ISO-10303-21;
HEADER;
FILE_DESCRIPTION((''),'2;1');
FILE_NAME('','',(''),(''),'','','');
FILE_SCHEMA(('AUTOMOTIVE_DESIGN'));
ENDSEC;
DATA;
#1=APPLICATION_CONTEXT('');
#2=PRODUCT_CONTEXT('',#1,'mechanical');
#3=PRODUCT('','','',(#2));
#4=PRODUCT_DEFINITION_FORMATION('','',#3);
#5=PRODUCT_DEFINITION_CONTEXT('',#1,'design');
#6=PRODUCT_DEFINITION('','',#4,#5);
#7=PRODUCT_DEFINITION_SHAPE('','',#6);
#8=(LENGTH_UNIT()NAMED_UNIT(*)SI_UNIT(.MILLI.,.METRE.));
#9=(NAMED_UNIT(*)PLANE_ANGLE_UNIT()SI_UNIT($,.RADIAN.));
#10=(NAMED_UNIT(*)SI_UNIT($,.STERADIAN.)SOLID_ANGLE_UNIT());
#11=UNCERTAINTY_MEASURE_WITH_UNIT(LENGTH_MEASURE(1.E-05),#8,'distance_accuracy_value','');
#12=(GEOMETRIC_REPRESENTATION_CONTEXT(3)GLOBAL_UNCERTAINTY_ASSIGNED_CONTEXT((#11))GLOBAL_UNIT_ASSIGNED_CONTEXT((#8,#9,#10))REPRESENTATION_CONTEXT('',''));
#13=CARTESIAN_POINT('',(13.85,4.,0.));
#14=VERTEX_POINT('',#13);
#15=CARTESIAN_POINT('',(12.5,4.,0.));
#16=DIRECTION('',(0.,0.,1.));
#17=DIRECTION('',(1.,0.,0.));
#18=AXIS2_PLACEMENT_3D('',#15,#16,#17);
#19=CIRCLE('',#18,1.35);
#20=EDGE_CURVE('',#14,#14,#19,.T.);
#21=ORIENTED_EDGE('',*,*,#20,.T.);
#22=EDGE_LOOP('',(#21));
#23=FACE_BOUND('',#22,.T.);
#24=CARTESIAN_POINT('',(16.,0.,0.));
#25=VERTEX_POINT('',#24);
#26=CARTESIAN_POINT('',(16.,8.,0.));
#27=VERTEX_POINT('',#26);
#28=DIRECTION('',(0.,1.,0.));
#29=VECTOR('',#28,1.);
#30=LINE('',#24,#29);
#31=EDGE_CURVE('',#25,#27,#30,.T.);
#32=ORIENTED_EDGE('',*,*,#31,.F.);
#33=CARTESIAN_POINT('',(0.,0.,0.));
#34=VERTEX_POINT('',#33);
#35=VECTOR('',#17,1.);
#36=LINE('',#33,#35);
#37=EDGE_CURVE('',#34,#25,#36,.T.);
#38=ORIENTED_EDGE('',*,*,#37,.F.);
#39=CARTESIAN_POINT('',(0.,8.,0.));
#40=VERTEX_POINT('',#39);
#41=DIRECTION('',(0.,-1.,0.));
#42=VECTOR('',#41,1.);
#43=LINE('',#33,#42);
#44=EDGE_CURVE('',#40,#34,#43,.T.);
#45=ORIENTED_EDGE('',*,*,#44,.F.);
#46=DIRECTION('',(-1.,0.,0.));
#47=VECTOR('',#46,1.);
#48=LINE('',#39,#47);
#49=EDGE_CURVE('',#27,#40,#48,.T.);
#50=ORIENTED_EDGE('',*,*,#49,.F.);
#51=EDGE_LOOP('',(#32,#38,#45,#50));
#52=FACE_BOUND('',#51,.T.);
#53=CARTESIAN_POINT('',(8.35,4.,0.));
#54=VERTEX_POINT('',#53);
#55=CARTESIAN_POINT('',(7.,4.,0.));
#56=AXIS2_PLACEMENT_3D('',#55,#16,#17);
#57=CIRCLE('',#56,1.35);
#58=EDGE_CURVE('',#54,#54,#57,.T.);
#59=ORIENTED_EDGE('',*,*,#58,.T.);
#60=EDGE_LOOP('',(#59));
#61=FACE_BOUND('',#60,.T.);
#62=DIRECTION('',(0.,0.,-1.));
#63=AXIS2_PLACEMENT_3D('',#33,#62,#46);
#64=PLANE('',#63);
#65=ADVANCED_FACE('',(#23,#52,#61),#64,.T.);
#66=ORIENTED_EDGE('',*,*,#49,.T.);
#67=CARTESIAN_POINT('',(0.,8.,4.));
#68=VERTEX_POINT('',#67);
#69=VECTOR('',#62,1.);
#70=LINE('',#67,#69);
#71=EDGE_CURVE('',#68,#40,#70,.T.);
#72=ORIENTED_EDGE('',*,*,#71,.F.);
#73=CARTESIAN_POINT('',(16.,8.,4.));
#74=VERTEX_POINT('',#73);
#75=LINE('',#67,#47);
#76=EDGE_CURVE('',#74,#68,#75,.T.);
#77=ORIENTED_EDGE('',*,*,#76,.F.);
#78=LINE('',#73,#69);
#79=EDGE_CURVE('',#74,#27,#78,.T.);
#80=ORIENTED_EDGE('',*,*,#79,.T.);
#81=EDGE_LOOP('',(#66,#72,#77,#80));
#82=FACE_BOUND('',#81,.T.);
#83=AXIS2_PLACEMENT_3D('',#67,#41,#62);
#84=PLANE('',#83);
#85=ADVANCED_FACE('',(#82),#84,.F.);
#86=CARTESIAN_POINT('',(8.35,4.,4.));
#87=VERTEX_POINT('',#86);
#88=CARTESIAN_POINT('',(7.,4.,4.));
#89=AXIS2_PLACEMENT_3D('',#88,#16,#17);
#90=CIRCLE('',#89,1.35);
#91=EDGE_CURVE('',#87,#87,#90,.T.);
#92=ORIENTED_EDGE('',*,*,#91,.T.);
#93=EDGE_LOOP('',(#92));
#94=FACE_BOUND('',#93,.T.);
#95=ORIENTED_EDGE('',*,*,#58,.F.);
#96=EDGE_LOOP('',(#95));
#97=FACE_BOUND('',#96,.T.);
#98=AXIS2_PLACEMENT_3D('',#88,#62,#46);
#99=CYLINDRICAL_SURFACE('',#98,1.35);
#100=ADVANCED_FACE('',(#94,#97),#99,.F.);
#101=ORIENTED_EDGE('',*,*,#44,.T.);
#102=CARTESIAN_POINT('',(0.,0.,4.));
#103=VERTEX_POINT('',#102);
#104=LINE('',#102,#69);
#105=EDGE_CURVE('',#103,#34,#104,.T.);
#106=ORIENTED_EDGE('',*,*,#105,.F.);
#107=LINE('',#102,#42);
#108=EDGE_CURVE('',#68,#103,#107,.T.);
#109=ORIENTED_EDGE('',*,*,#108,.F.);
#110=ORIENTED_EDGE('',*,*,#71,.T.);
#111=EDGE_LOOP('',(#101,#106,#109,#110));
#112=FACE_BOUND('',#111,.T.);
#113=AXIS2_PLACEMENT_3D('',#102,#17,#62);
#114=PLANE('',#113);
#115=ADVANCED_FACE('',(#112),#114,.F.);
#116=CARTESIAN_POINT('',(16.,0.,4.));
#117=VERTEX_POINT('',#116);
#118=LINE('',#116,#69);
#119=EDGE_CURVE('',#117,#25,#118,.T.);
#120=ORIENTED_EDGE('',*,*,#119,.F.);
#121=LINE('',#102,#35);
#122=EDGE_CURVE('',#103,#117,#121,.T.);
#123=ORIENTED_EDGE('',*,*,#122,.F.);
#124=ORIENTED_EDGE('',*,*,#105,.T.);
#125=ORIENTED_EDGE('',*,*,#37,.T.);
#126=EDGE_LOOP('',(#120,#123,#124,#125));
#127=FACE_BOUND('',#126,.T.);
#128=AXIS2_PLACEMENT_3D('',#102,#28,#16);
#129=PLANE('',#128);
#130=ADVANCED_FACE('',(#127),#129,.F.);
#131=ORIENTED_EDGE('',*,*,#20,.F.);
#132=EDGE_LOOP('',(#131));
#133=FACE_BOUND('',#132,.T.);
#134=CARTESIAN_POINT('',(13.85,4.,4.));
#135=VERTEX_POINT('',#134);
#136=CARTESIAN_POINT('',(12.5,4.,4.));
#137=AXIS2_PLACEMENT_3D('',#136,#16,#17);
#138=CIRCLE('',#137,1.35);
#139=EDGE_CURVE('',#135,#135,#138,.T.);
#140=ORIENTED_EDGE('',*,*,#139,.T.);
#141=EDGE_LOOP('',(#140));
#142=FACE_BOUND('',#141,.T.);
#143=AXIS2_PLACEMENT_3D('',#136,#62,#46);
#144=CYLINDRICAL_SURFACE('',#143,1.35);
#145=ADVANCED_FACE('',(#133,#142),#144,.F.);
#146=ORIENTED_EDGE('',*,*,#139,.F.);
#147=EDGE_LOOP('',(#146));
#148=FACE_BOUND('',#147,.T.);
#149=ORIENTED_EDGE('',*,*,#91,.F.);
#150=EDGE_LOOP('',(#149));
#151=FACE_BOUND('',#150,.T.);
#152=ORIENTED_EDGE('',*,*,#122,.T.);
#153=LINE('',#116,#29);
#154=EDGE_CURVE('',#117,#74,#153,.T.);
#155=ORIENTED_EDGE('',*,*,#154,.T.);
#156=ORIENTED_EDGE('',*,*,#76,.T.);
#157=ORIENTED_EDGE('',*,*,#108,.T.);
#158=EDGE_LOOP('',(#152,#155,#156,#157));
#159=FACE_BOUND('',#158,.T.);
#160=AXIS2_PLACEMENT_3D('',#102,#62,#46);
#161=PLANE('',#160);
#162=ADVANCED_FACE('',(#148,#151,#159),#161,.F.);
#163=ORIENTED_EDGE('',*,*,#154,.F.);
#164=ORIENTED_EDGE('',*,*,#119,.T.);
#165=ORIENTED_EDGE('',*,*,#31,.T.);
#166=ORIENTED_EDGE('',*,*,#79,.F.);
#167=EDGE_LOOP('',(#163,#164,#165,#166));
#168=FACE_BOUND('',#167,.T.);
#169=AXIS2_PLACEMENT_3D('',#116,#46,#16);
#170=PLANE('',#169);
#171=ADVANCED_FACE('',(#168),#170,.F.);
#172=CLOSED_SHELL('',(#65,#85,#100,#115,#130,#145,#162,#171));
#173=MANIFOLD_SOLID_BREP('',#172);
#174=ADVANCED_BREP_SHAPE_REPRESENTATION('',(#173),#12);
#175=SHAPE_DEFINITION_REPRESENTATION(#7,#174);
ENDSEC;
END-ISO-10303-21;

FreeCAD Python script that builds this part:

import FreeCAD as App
import Part
import Sketcher
from FreeCAD import Vector


def add_polygon(sketch, points):
    """Adds a closed chain of lines whose ends are joined by coincident constraints."""
    first, n = sketch.GeometryCount, len(points)
    for a, b in zip(points, points[1:] + points[:1]):
        sketch.addGeometry(Part.LineSegment(App.Vector(*a, 0), App.Vector(*b, 0)), False)
    for i in range(n):
        sketch.addConstraint(Sketcher.Constraint("Coincident", first + i, 2, first + (i + 1) % n, 1))

doc = App.newDocument("Part")
body = doc.addObject("PartDesign::Body", "Body")

# Sketch on XY plane
sketch1 = doc.addObject("Sketcher::SketchObject", "Sketch")
body.addObject(sketch1)
sketch1.AttachmentSupport = (doc.XY_Plane, [""])
sketch1.MapMode = "FlatFace"
add_polygon(sketch1, [(0, 8), (0, 0), (16, 0), (16, 8)])  # lines 0-3
sketch1.addGeometry(Part.Circle(Vector(7, 4, 0), Vector(0, 0, 1), 1.35), False)  # 4
sketch1.addGeometry(Part.Circle(Vector(12.5, 4, 0), Vector(0, 0, 1), 1.35), False)  # 5
sketch1.addConstraint(Sketcher.Constraint("Vertical", 0))
sketch1.addConstraint(Sketcher.Constraint("Horizontal", 1))
sketch1.addConstraint(Sketcher.Constraint("Vertical", 2))
sketch1.addConstraint(Sketcher.Constraint("Horizontal", 3))
sketch1.addConstraint(Sketcher.Constraint("Coincident", 0, 2, -1, 1))
sketch1.addConstraint(Sketcher.Constraint("Equal", 4, 5))
sketch1.addConstraint(Sketcher.Constraint("Horizontal", 4, 3, 5, 3))
sketch1.addConstraint(Sketcher.Constraint("Diameter", 4, 2.7))
sketch1.addConstraint(Sketcher.Constraint("DistanceX", 1, 1, 1, 2, 16.0))
sketch1.addConstraint(Sketcher.Constraint("DistanceY", 0, 2, 0, 1, 8.0))
sketch1.addConstraint(Sketcher.Constraint("DistanceX", -1, 1, 4, 3, 7.0))
sketch1.addConstraint(Sketcher.Constraint("DistanceY", -1, 1, 4, 3, 4.0))
sketch1.addConstraint(Sketcher.Constraint("DistanceX", -1, 1, 5, 3, 12.5))
pad1 = doc.addObject("PartDesign::Pad", "Pad")
body.addObject(pad1)
pad1.Profile = sketch1
pad1.Length = 4

doc.recompute()
